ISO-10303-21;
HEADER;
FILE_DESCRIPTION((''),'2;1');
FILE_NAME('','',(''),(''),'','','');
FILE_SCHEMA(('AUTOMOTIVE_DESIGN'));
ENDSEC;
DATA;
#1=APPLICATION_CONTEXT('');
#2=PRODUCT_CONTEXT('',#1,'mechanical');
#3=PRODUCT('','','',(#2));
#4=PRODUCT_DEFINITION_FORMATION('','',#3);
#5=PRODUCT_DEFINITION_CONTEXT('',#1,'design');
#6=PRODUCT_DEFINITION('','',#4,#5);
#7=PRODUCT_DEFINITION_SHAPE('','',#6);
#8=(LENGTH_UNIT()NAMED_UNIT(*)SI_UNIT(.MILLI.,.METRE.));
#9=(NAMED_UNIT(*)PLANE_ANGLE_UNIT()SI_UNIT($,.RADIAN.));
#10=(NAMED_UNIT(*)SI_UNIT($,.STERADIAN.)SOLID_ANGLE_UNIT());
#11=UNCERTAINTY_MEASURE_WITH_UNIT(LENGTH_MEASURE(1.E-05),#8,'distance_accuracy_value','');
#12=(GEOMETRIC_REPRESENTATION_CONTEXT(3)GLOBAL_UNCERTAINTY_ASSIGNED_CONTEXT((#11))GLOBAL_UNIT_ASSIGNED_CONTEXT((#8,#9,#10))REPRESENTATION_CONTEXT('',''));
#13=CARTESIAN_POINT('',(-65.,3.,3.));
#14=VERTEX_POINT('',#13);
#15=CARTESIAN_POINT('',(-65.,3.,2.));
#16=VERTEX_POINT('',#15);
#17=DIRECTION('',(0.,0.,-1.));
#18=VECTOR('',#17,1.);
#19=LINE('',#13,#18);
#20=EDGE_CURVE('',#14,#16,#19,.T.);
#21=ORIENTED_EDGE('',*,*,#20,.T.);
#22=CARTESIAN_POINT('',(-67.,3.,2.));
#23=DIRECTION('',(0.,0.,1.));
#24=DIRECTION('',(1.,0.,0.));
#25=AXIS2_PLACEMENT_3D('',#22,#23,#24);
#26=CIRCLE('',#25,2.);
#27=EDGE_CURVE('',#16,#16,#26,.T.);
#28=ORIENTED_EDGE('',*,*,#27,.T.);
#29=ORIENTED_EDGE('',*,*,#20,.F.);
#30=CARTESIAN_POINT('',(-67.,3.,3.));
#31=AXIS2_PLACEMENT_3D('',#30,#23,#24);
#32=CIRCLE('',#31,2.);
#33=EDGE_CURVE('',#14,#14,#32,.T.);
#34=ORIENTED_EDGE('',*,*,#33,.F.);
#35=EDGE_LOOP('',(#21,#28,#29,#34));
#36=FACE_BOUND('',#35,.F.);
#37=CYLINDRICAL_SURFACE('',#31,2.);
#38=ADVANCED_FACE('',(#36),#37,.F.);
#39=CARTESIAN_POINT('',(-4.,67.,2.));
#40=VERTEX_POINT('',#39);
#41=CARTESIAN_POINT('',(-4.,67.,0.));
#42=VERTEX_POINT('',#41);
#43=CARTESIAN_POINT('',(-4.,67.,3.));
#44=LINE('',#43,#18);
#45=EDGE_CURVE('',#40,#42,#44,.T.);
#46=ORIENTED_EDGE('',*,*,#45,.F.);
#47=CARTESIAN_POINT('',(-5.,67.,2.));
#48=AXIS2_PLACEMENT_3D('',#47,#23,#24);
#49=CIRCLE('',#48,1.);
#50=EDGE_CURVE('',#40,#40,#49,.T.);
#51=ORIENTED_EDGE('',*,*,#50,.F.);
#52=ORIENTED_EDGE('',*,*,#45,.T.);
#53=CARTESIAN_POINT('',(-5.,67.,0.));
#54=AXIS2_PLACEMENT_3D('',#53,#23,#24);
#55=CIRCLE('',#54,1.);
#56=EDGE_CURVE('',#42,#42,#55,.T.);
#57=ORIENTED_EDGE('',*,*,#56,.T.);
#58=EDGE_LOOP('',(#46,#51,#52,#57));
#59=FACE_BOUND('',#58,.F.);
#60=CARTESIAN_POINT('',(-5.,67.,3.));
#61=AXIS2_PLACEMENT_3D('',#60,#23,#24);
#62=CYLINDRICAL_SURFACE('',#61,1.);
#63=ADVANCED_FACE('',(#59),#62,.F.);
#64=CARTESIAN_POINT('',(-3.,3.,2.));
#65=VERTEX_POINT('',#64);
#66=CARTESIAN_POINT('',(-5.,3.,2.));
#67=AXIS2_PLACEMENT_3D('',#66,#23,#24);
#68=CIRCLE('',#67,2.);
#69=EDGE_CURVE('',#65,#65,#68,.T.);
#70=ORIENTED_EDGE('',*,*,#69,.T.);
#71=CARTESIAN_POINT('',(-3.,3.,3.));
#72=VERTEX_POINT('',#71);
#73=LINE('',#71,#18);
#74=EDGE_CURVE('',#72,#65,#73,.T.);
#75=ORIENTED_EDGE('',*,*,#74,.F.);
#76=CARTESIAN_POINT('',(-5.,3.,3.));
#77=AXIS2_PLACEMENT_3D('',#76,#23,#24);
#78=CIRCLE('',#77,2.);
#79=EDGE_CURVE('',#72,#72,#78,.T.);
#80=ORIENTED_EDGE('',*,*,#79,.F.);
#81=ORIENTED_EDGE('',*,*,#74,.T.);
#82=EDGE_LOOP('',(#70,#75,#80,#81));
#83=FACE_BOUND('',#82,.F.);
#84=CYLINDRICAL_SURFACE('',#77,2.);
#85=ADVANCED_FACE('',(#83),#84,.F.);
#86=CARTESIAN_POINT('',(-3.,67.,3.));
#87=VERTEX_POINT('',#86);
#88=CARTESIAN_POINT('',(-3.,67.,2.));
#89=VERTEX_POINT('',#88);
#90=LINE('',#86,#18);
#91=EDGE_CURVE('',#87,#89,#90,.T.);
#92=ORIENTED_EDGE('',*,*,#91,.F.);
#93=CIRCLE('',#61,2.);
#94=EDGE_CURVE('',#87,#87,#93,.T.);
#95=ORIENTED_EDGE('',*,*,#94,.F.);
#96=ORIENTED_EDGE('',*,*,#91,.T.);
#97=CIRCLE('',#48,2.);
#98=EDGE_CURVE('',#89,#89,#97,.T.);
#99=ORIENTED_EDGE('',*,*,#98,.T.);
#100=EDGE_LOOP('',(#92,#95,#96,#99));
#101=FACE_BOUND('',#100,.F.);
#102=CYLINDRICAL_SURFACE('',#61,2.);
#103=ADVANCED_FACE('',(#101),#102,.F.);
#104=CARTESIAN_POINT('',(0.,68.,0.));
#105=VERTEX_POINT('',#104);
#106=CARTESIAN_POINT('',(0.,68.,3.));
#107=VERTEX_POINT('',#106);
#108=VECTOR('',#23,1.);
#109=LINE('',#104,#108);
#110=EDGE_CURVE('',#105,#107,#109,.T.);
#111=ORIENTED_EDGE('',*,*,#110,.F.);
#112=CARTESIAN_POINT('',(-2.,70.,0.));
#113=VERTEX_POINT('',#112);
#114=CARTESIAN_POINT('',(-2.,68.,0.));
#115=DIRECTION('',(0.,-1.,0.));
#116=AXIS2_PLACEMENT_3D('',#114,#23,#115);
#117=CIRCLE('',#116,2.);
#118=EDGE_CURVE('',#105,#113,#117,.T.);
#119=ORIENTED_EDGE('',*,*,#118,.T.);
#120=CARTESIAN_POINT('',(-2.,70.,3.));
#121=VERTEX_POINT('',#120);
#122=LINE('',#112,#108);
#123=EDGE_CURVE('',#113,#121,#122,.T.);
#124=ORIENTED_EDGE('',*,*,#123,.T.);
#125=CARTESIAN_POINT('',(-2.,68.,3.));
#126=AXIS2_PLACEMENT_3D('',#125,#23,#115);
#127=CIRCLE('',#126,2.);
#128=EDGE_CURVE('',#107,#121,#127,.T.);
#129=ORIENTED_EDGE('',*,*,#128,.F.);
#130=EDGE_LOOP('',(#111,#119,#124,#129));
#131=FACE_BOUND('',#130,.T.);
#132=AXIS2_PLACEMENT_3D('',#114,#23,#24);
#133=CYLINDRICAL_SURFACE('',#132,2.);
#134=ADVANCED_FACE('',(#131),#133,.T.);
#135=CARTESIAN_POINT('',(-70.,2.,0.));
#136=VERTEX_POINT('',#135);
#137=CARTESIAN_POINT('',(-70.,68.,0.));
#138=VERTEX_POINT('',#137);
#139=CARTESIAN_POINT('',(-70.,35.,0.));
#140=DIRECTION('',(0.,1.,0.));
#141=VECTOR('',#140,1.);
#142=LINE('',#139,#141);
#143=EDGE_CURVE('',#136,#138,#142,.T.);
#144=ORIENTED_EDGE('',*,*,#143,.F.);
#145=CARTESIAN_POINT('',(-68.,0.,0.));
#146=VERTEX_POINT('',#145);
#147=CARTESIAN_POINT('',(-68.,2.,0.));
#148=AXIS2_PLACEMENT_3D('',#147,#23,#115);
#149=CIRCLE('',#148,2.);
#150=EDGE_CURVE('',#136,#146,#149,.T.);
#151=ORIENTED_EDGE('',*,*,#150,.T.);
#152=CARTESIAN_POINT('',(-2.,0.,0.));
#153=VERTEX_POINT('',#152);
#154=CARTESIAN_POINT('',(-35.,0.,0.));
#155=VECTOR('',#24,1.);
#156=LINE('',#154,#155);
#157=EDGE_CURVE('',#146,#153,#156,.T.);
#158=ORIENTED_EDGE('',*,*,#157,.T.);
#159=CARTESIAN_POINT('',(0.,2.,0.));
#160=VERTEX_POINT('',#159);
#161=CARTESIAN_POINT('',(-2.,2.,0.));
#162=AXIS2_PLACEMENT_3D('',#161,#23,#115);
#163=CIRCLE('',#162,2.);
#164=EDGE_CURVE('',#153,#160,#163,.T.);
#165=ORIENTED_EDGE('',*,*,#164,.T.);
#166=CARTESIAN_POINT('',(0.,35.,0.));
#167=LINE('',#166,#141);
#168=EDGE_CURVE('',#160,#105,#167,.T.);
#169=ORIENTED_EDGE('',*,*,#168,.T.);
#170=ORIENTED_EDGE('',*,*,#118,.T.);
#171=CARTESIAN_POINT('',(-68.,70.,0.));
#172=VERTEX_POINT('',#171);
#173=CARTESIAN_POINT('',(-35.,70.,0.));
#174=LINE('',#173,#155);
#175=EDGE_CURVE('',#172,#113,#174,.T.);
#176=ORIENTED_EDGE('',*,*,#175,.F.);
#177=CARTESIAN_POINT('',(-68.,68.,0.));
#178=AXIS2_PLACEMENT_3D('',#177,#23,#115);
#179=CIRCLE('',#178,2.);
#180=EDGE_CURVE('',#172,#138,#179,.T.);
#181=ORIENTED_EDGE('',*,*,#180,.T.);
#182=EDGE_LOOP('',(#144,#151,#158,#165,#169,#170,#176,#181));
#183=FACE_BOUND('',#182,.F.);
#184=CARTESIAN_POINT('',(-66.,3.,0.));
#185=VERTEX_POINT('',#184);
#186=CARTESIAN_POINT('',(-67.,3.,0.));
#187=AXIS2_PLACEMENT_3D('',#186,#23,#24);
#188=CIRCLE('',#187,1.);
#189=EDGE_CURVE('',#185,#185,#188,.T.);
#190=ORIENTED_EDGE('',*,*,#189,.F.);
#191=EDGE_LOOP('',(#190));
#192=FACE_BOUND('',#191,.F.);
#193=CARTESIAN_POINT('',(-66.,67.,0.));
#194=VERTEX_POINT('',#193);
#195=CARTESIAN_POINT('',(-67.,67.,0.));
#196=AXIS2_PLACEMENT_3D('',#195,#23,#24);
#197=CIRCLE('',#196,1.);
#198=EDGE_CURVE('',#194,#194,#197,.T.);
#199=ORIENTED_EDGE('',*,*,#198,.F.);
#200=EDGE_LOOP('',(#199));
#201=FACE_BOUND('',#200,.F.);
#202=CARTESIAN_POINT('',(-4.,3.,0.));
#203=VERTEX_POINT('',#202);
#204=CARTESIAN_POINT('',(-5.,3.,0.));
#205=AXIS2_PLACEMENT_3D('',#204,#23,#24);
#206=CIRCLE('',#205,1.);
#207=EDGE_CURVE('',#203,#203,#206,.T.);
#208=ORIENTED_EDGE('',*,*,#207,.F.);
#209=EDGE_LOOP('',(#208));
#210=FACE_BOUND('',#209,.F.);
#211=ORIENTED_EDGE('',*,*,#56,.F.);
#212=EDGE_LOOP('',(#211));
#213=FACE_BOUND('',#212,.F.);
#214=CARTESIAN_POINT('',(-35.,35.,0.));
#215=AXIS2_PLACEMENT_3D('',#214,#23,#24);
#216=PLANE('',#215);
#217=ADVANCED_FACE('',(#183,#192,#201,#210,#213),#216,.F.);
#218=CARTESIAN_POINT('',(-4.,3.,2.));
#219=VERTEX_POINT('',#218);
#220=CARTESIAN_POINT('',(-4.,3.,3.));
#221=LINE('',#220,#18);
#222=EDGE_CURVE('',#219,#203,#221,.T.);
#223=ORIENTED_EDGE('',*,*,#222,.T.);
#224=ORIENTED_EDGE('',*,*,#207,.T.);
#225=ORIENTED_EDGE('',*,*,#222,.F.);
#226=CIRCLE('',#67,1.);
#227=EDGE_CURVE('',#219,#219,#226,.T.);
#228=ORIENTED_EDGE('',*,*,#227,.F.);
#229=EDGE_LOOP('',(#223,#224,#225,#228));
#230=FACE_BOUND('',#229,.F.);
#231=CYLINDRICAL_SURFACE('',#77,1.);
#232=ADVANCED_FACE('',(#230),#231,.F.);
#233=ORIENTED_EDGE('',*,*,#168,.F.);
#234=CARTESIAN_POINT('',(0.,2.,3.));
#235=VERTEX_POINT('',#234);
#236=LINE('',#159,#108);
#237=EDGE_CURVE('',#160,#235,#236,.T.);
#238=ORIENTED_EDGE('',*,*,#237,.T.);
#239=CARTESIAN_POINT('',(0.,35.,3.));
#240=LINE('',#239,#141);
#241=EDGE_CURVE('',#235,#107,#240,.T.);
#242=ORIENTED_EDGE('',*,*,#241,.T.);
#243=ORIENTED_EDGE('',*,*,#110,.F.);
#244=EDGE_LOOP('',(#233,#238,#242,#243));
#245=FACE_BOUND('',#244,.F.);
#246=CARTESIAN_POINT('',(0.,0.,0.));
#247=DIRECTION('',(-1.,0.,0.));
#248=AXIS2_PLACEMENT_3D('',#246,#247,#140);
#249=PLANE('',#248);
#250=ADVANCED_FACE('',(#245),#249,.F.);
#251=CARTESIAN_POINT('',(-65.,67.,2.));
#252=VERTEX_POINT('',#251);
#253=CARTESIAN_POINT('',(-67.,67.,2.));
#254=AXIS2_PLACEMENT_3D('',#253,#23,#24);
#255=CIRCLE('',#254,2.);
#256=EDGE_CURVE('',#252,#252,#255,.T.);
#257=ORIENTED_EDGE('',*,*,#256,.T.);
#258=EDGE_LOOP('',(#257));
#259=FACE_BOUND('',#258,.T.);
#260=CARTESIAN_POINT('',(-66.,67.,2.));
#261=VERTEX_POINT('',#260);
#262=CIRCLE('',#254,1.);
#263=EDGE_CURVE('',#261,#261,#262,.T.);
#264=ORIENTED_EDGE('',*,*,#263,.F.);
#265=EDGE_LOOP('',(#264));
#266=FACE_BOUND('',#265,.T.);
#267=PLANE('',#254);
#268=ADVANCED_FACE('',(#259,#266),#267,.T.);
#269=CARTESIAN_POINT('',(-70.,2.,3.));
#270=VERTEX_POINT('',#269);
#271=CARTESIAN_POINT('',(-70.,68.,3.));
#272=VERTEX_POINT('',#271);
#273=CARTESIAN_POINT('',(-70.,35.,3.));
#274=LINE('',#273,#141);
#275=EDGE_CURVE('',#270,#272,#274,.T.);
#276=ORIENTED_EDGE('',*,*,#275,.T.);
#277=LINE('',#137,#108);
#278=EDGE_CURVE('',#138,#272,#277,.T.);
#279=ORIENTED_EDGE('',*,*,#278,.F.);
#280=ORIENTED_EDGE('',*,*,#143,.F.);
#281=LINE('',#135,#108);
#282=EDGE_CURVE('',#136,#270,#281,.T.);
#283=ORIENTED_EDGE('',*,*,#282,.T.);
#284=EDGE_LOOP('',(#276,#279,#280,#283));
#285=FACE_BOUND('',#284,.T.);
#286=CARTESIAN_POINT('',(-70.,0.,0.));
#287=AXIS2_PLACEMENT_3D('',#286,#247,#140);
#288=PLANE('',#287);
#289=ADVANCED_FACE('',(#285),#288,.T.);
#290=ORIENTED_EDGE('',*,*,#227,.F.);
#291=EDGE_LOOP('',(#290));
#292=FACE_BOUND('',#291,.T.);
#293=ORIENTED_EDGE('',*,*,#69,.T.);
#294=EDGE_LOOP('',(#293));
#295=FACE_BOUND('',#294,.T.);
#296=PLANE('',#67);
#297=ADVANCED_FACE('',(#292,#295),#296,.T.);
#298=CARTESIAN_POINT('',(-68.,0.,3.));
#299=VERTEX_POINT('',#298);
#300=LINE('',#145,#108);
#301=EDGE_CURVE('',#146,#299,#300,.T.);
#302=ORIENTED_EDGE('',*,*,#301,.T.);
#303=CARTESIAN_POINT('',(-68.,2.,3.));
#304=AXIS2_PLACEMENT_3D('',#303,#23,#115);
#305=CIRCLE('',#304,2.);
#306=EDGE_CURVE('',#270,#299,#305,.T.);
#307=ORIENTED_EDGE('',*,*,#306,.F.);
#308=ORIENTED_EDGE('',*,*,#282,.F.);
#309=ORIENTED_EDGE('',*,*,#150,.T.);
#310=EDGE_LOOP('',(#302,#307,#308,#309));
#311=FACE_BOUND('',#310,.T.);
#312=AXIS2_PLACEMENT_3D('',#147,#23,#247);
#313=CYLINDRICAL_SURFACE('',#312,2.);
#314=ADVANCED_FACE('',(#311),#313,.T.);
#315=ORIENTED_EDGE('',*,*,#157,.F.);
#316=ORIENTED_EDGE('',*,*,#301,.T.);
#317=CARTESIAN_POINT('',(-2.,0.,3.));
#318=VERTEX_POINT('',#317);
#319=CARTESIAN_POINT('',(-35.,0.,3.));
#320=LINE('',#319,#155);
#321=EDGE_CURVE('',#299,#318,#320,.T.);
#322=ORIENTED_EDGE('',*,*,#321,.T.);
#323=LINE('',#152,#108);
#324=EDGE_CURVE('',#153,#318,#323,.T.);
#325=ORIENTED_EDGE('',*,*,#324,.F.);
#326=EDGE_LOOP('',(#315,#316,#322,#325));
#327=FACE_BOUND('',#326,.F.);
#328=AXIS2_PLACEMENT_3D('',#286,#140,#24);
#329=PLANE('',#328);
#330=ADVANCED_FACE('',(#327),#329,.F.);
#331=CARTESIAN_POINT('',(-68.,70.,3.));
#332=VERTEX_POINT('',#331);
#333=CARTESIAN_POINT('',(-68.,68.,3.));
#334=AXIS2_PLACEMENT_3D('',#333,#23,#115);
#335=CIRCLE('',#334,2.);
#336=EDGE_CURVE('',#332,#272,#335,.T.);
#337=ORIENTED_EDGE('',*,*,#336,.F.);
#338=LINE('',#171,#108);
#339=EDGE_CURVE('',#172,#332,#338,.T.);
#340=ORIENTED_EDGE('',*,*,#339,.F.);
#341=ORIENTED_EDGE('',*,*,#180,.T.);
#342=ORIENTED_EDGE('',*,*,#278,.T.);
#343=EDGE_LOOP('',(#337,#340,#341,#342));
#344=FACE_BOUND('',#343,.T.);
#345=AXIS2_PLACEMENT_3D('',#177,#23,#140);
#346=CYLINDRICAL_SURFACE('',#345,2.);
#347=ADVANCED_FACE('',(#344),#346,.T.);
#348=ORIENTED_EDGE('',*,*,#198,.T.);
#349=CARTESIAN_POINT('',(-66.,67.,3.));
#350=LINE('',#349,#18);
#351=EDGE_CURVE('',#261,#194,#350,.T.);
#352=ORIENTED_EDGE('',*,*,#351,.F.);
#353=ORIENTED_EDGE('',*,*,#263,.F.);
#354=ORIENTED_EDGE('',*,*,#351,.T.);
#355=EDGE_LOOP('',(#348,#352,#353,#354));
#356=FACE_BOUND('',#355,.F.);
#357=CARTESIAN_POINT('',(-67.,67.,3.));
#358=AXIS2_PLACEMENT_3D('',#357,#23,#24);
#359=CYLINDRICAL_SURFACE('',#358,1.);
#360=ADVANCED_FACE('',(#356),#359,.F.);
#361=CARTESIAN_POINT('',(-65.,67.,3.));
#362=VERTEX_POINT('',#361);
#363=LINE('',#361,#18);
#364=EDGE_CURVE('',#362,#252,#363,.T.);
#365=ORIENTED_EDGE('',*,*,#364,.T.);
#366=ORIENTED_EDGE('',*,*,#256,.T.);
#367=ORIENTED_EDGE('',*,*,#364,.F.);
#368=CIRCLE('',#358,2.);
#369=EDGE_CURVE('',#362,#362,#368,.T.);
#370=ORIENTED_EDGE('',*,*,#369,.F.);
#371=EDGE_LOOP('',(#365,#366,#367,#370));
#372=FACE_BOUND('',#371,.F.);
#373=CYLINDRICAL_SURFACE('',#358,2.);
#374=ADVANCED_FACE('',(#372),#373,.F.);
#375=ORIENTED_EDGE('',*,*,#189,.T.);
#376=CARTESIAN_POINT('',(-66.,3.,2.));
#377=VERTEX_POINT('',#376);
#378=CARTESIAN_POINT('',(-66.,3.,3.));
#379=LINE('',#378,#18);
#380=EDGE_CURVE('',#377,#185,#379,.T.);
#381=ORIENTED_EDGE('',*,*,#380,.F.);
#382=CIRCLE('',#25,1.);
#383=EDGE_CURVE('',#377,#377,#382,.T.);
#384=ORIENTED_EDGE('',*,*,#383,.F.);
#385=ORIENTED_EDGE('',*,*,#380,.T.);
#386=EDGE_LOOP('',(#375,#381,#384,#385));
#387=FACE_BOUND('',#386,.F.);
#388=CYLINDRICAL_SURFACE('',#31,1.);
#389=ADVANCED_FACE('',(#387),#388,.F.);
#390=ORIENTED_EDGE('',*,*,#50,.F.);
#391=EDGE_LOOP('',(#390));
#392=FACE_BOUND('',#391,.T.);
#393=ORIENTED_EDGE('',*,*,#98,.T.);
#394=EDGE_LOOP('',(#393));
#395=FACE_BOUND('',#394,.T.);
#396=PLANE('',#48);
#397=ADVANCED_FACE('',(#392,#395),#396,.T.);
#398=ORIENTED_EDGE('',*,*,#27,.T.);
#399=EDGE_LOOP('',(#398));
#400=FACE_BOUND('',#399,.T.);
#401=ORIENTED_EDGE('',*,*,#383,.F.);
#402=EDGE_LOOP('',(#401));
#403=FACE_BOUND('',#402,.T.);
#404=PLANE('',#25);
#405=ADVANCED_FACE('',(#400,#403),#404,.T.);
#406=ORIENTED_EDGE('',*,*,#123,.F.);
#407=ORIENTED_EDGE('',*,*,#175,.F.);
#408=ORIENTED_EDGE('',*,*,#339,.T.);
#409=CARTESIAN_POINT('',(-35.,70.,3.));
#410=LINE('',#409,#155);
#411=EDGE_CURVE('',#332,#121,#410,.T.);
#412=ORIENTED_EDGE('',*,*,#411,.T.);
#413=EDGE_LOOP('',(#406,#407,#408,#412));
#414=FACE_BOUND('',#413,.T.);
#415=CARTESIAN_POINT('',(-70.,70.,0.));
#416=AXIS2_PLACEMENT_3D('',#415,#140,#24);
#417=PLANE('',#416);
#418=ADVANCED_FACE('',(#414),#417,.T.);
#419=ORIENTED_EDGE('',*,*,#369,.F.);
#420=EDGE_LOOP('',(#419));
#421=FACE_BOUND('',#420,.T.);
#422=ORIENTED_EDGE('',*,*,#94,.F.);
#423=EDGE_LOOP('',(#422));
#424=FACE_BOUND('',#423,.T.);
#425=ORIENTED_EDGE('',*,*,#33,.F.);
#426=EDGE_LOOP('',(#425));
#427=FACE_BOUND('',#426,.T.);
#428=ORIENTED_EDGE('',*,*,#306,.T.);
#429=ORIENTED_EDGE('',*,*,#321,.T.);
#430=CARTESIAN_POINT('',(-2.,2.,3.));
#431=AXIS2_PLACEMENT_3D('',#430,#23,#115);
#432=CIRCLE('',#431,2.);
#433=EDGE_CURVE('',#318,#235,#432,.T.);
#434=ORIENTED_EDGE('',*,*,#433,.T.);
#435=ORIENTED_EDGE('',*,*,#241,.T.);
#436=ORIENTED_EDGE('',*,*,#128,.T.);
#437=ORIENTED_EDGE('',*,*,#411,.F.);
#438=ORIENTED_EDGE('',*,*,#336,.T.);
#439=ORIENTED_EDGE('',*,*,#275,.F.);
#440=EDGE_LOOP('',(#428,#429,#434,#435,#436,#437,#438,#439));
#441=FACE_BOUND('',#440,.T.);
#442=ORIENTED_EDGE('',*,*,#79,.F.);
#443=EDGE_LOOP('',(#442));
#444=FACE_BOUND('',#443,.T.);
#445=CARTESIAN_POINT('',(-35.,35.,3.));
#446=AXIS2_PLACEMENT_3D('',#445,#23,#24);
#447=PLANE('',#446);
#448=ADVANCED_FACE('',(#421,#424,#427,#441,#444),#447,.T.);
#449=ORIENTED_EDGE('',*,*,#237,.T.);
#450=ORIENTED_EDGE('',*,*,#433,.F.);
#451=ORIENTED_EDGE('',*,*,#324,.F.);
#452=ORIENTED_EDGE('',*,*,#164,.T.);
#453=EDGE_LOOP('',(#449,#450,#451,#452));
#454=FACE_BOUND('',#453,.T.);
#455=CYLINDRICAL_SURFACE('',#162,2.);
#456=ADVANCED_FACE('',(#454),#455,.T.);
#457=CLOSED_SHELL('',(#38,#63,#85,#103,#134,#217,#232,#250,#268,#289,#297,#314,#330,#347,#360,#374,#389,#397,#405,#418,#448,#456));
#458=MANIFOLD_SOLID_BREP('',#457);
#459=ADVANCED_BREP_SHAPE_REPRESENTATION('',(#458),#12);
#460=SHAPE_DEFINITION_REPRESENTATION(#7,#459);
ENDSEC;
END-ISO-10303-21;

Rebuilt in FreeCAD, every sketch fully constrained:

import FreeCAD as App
import Part
import Sketcher


def edges_at(feature, points):
    """Names of the edges that pass closest to the given points."""
    edges = feature.Shape.Edges
    near = lambda p: min(range(len(edges)), key=lambda i: edges[i].distToShape(Part.Vertex(*p))[0])
    return sorted({f"Edge{near(p) + 1}" for p in points})

doc = App.newDocument("Part")
body = doc.addObject("PartDesign::Body", "Body")

# Sketch on XY plane
sketch1 = doc.addObject("Sketcher::SketchObject", "Sketch")
body.addObject(sketch1)
sketch1.AttachmentSupport = (doc.XY_Plane, [""])
sketch1.MapMode = "FlatFace"
sketch1.addGeometry([
    Part.LineSegment(App.Vector(-70, 70, 0), App.Vector(-70, 0, 0)),
    Part.LineSegment(App.Vector(-70, 0, 0), App.Vector(0, 0, 0)),
    Part.LineSegment(App.Vector(0, 0, 0), App.Vector(0, 70, 0)),
    Part.LineSegment(App.Vector(0, 70, 0), App.Vector(-70, 70, 0)),
], False)
sketch1.addConstraint([
    Sketcher.Constraint("Coincident", 0, 2, 1, 1),
    Sketcher.Constraint("Coincident", 1, 2, 2, 1),
    Sketcher.Constraint("Coincident", 2, 2, 3, 1),
    Sketcher.Constraint("Coincident", 3, 2, 0, 1),
    Sketcher.Constraint("Vertical", 0),
    Sketcher.Constraint("Horizontal", 1),
    Sketcher.Constraint("Vertical", 2),
    Sketcher.Constraint("Horizontal", 3),
    Sketcher.Constraint("Coincident", 1, 2, -1, 1),
    Sketcher.Constraint("Equal", 3, 0),
    Sketcher.Constraint("DistanceX", 1, 1, 1, 2, 70.0),
])
pad1 = doc.addObject("PartDesign::Pad", "Pad")
body.addObject(pad1)
pad1.Profile = sketch1
pad1.Length = 3
doc.recompute()

fillet = doc.addObject("PartDesign::Fillet", "Fillet")
body.addObject(fillet)
fillet.Base = (pad1, edges_at(pad1, [(0, 70, 1.5)]))
fillet.Radius = 2
doc.recompute()

fillet2 = doc.addObject("PartDesign::Fillet", "Fillet001")
body.addObject(fillet2)
fillet2.Base = (fillet, edges_at(fillet, [(-70, 70, 1.5)]))
fillet2.Radius = 2
doc.recompute()

fillet3 = doc.addObject("PartDesign::Fillet", "Fillet002")
body.addObject(fillet3)
fillet3.Base = (fillet2, edges_at(fillet2, [(-70, 0, 1.5)]))
fillet3.Radius = 2
doc.recompute()

fillet4 = doc.addObject("PartDesign::Fillet", "Fillet003")
body.addObject(fillet4)
fillet4.Base = (fillet3, edges_at(fillet3, [(0, 0, 1.5)]))
fillet4.Radius = 2

# Sketch on XY plane
sketch2 = doc.addObject("Sketcher::SketchObject", "Sketch001")
body.addObject(sketch2)
sketch2.AttachmentSupport = (doc.XY_Plane, [""])
sketch2.MapMode = "FlatFace"
sketch2.AttachmentOffset = App.Placement(App.Vector(0, 0, 3), App.Rotation())
sketch2.addGeometry([
    Part.Circle(App.Vector(-5, 67, 0), App.Vector(0, 0, 1), 1),
    Part.Circle(App.Vector(-67, 67, 0), App.Vector(0, 0, 1), 1),
    Part.Circle(App.Vector(-5, 3, 0), App.Vector(0, 0, 1), 1),
    Part.Circle(App.Vector(-67, 3, 0), App.Vector(0, 0, 1), 1),
], False)
sketch2.addConstraint([
    Sketcher.Constraint("Equal", 0, 1),
    Sketcher.Constraint("Equal", 1, 2),
    Sketcher.Constraint("Equal", 2, 3),
    Sketcher.Constraint("Horizontal", 0, 3, 1, 3),
    Sketcher.Constraint("Horizontal", 2, 3, 3, 3),
    Sketcher.Constraint("Vertical", 0, 3, 2, 3),
    Sketcher.Constraint("Vertical", 1, 3, 3, 3),
    Sketcher.Constraint("Diameter", 0, 2.0),
    Sketcher.Constraint("DistanceX", 0, 3, -1, 1, 5.0),
    Sketcher.Constraint("DistanceY", -1, 1, 0, 3, 67.0),
    Sketcher.Constraint("DistanceX", 1, 3, -1, 1, 67.0),
    Sketcher.Constraint("DistanceY", -1, 1, 2, 3, 3.0),
])
pocket1 = doc.addObject("PartDesign::Pocket", "Pocket")
body.addObject(pocket1)
pocket1.Profile = sketch2
pocket1.Length = 5

# Sketch on XY plane
sketch3 = doc.addObject("Sketcher::SketchObject", "Sketch002")
body.addObject(sketch3)
sketch3.AttachmentSupport = (doc.XY_Plane, [""])
sketch3.MapMode = "FlatFace"
sketch3.AttachmentOffset = App.Placement(App.Vector(0, 0, 3), App.Rotation())
sketch3.addGeometry([
    Part.Circle(App.Vector(-67, 67, 0), App.Vector(0, 0, 1), 2),
    Part.Circle(App.Vector(-5, 67, 0), App.Vector(0, 0, 1), 2),
    Part.Circle(App.Vector(-67, 3, 0), App.Vector(0, 0, 1), 2),
    Part.Circle(App.Vector(-5, 3, 0), App.Vector(0, 0, 1), 2),
], False)
sketch3.addConstraint([
    Sketcher.Constraint("Equal", 0, 1),
    Sketcher.Constraint("Equal", 1, 2),
    Sketcher.Constraint("Equal", 2, 3),
    Sketcher.Constraint("Horizontal", 0, 3, 1, 3),
    Sketcher.Constraint("Horizontal", 2, 3, 3, 3),
    Sketcher.Constraint("Vertical", 0, 3, 2, 3),
    Sketcher.Constraint("Vertical", 1, 3, 3, 3),
    Sketcher.Constraint("Diameter", 0, 4.0),
    Sketcher.Constraint("DistanceX", 0, 3, -1, 1, 67.0),
    Sketcher.Constraint("DistanceY", -1, 1, 0, 3, 67.0),
    Sketcher.Constraint("DistanceX", 1, 3, -1, 1, 5.0),
    Sketcher.Constraint("DistanceY", -1, 1, 2, 3, 3.0),
])
pocket2 = doc.addObject("PartDesign::Pocket", "Pocket001")
body.addObject(pocket2)
pocket2.Profile = sketch3
pocket2.Length = 1

doc.recompute()
